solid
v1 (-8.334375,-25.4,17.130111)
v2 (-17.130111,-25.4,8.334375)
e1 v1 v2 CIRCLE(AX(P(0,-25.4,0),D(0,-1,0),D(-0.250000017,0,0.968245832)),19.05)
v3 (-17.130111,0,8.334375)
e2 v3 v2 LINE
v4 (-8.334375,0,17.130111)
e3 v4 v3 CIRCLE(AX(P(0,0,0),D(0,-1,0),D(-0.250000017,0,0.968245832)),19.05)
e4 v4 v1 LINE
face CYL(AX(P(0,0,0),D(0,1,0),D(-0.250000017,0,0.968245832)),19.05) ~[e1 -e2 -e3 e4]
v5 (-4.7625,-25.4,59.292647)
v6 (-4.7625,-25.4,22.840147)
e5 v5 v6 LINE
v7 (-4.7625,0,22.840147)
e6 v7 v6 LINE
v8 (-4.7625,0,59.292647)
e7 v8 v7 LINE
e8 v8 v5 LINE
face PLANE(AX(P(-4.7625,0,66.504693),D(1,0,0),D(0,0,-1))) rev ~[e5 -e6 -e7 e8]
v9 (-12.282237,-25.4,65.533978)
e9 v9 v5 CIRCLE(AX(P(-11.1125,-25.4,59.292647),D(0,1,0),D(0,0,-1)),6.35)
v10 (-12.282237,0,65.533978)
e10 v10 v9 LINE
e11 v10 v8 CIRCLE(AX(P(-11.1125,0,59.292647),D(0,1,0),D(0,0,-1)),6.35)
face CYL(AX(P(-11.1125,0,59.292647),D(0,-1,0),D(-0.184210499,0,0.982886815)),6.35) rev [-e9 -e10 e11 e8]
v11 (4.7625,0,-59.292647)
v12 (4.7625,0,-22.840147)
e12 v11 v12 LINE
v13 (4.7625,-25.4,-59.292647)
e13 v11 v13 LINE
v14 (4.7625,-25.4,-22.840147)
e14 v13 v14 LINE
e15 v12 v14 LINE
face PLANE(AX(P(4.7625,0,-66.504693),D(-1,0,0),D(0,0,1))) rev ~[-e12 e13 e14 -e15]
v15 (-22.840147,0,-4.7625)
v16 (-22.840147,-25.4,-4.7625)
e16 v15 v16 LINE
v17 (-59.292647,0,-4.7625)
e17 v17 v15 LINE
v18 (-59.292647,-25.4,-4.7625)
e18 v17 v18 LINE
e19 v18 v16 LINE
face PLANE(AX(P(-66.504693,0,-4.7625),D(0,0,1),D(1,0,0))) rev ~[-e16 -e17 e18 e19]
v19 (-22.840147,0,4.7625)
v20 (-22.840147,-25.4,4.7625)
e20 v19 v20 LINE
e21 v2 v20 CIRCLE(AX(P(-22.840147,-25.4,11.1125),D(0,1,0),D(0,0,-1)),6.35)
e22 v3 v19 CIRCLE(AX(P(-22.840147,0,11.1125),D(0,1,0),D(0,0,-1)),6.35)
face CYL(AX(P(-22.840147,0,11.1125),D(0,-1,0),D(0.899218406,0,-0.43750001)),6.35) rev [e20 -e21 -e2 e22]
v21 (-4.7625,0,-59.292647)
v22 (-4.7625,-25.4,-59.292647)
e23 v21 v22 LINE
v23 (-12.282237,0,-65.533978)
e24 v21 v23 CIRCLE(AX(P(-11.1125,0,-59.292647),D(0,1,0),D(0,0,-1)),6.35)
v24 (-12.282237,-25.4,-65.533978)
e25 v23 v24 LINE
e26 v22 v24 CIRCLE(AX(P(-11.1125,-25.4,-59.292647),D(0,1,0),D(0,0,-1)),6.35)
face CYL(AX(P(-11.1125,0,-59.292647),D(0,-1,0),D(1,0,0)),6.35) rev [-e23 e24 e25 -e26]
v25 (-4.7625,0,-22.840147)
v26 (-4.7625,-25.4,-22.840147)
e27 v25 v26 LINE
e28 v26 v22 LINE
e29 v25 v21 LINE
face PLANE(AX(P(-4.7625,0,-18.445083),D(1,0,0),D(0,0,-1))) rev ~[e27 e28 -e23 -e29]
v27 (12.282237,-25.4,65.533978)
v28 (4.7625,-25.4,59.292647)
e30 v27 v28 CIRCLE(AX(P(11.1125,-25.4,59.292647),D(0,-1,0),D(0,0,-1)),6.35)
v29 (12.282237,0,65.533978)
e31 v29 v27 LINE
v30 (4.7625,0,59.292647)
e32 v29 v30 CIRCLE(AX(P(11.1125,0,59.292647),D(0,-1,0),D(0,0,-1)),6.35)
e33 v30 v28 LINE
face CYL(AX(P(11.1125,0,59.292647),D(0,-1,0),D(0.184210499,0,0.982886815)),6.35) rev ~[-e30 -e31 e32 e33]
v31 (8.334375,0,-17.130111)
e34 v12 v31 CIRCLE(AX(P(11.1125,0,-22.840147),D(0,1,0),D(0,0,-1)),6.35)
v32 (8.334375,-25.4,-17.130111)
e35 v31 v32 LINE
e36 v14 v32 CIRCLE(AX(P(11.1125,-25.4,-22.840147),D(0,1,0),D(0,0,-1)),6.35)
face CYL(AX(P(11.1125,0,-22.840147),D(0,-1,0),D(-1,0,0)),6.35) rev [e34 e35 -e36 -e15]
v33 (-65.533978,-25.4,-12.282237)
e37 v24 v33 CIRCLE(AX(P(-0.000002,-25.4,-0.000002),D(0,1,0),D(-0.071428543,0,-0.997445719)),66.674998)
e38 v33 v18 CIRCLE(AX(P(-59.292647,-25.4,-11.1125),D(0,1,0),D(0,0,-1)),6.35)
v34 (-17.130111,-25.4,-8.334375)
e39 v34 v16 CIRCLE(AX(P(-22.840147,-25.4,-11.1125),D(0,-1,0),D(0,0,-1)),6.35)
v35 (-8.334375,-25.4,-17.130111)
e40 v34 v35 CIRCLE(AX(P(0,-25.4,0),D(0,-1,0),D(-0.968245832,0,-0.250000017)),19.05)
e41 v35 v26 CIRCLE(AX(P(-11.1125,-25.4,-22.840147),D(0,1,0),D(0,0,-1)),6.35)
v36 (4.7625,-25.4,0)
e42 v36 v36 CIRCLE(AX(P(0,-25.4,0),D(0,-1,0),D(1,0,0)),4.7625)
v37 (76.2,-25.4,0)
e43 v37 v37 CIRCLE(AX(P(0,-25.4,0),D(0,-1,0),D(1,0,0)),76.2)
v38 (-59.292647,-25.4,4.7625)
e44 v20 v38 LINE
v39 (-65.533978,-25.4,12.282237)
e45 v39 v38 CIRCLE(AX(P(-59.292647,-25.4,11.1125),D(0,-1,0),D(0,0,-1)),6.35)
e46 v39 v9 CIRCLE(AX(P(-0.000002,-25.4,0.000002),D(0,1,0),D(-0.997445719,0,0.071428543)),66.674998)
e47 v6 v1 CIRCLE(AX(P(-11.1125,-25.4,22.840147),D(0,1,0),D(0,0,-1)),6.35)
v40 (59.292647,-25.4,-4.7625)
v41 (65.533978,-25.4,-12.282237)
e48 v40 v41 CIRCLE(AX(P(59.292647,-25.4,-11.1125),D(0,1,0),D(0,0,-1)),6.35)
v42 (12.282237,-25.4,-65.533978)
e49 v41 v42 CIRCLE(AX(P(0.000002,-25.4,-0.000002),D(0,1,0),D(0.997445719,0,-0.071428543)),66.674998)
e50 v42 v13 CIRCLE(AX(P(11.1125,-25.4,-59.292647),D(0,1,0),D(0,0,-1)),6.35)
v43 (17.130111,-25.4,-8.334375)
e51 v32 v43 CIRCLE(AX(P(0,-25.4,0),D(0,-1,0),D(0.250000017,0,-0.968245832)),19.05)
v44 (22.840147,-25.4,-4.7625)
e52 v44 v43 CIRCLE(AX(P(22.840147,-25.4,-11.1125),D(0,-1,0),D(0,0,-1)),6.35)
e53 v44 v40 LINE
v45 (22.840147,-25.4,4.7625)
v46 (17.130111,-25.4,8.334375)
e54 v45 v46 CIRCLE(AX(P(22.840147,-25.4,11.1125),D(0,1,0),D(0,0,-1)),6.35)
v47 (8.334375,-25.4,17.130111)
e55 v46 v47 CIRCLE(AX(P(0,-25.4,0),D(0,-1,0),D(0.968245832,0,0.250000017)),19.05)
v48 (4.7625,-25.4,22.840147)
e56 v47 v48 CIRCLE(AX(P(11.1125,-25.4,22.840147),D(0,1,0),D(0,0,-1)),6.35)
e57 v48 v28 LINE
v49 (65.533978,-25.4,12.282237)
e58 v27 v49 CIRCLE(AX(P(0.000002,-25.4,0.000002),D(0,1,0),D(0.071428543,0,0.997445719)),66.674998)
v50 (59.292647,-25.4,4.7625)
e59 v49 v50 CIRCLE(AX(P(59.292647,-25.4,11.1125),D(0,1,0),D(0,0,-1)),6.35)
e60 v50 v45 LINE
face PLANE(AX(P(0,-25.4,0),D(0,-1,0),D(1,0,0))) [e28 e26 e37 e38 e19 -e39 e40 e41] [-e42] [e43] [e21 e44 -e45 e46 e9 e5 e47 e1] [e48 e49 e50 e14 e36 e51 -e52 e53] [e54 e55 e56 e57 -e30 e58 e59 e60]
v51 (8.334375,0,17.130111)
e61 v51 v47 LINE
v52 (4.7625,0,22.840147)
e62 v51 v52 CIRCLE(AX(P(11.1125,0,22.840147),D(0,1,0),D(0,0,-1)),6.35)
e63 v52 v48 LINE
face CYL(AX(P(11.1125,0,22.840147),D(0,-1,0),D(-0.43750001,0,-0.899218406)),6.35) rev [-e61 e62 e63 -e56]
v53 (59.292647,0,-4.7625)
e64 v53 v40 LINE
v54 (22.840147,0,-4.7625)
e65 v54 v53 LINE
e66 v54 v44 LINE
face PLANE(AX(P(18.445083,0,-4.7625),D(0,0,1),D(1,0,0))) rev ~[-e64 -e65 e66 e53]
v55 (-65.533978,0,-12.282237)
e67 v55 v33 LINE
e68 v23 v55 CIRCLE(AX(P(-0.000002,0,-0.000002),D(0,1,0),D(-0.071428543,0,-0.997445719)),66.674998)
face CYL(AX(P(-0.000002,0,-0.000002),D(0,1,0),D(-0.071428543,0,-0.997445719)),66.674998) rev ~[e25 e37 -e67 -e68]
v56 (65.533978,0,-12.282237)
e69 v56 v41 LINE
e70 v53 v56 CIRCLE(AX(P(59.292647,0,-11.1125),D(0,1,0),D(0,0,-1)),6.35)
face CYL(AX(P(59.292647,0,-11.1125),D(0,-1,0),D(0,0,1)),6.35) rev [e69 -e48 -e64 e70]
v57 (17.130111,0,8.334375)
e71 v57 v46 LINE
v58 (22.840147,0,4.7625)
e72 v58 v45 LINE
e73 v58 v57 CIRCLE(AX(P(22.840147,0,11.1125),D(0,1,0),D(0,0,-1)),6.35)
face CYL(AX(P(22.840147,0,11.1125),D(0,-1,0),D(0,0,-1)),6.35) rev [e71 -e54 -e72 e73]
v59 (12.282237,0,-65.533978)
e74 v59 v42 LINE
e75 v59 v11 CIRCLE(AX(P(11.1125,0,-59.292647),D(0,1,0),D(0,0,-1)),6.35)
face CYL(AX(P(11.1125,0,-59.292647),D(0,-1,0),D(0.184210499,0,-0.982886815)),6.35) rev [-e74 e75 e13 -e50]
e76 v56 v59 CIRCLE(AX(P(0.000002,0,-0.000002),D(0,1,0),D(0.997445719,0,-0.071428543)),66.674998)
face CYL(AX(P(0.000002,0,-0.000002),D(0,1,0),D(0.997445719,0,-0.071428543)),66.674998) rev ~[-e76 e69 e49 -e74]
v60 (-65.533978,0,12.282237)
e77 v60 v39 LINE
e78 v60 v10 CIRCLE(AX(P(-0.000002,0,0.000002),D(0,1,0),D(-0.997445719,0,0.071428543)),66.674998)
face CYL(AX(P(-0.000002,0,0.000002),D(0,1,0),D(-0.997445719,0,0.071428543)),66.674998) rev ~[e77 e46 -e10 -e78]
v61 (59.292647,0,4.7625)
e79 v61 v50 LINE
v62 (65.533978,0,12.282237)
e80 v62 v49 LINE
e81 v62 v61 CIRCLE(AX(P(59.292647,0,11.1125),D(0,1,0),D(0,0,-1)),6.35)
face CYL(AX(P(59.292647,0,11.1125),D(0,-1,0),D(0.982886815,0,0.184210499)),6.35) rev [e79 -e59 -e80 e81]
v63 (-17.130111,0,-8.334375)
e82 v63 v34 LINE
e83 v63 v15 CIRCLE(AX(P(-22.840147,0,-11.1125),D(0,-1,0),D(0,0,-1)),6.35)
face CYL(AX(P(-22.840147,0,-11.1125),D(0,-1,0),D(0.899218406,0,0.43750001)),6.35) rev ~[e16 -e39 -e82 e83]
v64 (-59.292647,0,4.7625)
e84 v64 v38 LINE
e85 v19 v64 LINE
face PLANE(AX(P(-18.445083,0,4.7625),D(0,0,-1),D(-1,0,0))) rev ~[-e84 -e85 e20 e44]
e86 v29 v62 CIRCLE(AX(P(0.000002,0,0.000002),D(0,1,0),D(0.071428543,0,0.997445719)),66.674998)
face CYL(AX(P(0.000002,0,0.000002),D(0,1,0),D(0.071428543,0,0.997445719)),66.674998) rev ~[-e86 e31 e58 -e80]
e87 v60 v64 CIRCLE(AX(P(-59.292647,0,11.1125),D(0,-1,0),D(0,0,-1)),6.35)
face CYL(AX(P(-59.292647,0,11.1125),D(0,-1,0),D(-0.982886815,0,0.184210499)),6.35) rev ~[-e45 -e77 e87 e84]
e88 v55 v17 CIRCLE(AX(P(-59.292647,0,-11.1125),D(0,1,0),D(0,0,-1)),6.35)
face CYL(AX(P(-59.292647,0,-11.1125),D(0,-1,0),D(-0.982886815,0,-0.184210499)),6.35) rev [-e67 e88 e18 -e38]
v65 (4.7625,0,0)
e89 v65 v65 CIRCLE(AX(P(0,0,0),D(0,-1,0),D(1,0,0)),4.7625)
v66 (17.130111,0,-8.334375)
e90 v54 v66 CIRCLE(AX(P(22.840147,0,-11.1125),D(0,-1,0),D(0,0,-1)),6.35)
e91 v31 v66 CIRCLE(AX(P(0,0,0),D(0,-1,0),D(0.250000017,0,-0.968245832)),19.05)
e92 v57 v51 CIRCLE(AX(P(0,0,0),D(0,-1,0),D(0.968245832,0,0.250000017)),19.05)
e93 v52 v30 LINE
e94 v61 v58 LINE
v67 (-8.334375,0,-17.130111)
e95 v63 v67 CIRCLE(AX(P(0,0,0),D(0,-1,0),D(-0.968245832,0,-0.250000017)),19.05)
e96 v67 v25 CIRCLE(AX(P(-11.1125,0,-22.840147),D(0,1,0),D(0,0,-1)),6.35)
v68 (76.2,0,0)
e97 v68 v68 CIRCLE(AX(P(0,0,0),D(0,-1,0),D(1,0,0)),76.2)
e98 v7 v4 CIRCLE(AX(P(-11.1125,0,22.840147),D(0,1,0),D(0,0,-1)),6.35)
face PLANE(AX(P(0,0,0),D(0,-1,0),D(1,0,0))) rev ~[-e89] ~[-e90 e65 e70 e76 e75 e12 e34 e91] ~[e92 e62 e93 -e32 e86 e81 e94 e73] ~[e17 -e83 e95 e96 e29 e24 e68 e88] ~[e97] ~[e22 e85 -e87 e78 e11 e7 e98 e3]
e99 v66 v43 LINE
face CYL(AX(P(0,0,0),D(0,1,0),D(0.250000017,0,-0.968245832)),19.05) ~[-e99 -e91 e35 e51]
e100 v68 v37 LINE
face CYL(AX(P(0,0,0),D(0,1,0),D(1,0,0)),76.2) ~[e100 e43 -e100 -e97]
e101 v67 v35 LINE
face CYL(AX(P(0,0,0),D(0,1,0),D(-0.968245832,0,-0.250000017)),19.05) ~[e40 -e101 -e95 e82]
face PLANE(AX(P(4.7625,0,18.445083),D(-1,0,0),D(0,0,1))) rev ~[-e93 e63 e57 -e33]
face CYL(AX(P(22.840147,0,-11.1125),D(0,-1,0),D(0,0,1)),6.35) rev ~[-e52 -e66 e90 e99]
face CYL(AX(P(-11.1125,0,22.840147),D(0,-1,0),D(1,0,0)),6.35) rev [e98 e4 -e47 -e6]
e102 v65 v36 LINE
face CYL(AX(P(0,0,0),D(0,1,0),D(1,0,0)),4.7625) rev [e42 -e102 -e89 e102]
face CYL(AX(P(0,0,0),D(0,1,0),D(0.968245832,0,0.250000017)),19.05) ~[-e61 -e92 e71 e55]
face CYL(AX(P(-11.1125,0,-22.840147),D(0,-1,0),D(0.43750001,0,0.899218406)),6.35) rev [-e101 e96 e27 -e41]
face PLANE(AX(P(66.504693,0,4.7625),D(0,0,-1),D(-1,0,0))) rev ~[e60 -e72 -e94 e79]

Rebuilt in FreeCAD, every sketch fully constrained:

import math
import FreeCAD as App
import Part
import Sketcher

V = App.Vector
Q = App.Units.Quantity


def edges_at(feature, points):
    """Names of the edges that pass closest to the given points."""
    edges = feature.Shape.Edges
    near = lambda p: min(range(len(edges)), key=lambda i: edges[i].distToShape(Part.Vertex(*p))[0])
    return sorted({f"Edge{near(p) + 1}" for p in points})

doc = App.newDocument("Part")
body = doc.addObject("PartDesign::Body", "Body")

# Sketch on XZ plane
sketch1 = body.newObject("Sketcher::SketchObject", "Sketch")
sketch1.AttachmentSupport = (doc.getObject("XZ_Plane"), [""])
sketch1.MapMode = "FlatFace"
sketch1.addGeometry(Part.Circle(V(0, 0, 0), V(0, 0, 1), 76.2), False)
sketch1.addGeometry(Part.LineSegment(V(18.4, -4.8, 0), V(66.5, -4.8, 0)), False)
sketch1.addGeometry(Part.ArcOfCircle(Part.Circle(V(0, 0, 0), V(0, 0, 1), 66.7), math.radians(-86), math.radians(-4)), False)
sketch1.addGeometry(Part.LineSegment(V(4.8, -66.5, 0), V(4.8, -18.4, 0)), False)
sketch1.addGeometry(Part.ArcOfCircle(Part.Circle(V(0, 0, 0), V(0, 0, 1), 19.1), math.radians(-76), math.radians(-14)), False)
sketch1.addGeometry(Part.ArcOfCircle(Part.Circle(V(0, 0, 0), V(0, 0, 1), 19.1), math.radians(-166), math.radians(-104)), False)
sketch1.addGeometry(Part.LineSegment(V(-4.8, -18.4, 0), V(-4.8, -66.5, 0)), False)
sketch1.addGeometry(Part.ArcOfCircle(Part.Circle(V(0, 0, 0), V(0, 0, 1), 66.7), math.radians(-176), math.radians(-94)), False)
sketch1.addGeometry(Part.LineSegment(V(-66.5, -4.8, 0), V(-18.4, -4.8, 0)), False)
sketch1.addGeometry(Part.ArcOfCircle(Part.Circle(V(0, 0, 0), V(0, 0, 1), 66.7), math.radians(94), math.radians(176)), False)
sketch1.addGeometry(Part.LineSegment(V(-4.8, 66.5, 0), V(-4.8, 18.4, 0)), False)
sketch1.addGeometry(Part.ArcOfCircle(Part.Circle(V(0, 0, 0), V(0, 0, 1), 19.1), math.radians(104), math.radians(166)), False)
sketch1.addGeometry(Part.LineSegment(V(-18.4, 4.8, 0), V(-66.5, 4.8, 0)), False)
sketch1.addGeometry(Part.Circle(V(0, 0, 0), V(0, 0, 1), 4.8), False)
sketch1.addGeometry(Part.ArcOfCircle(Part.Circle(V(0, 0, 0), V(0, 0, 1), 66.7), math.radians(4), math.radians(86)), False)
sketch1.addGeometry(Part.LineSegment(V(66.5, 4.8, 0), V(18.4, 4.8, 0)), False)
sketch1.addGeometry(Part.ArcOfCircle(Part.Circle(V(0, 0, 0), V(0, 0, 1), 19.1), math.radians(14), math.radians(76)), False)
sketch1.addGeometry(Part.LineSegment(V(4.8, 18.4, 0), V(4.8, 66.5, 0)), False)
sketch1.addConstraint(Sketcher.Constraint("Coincident", 1, 2, 2, 2))
sketch1.addConstraint(Sketcher.Constraint("Coincident", 2, 1, 3, 1))
sketch1.addConstraint(Sketcher.Constraint("Coincident", 3, 2, 4, 1))
sketch1.addConstraint(Sketcher.Constraint("Coincident", 4, 2, 1, 1))
sketch1.addConstraint(Sketcher.Constraint("Coincident", 5, 2, 6, 1))
sketch1.addConstraint(Sketcher.Constraint("Coincident", 6, 2, 7, 2))
sketch1.addConstraint(Sketcher.Constraint("Coincident", 7, 1, 8, 1))
sketch1.addConstraint(Sketcher.Constraint("Coincident", 8, 2, 5, 1))
sketch1.addConstraint(Sketcher.Constraint("Coincident", 9, 1, 10, 1))
sketch1.addConstraint(Sketcher.Constraint("Coincident", 10, 2, 11, 1))
sketch1.addConstraint(Sketcher.Constraint("Coincident", 11, 2, 12, 1))
sketch1.addConstraint(Sketcher.Constraint("Coincident", 12, 2, 9, 2))
sketch1.addConstraint(Sketcher.Constraint("Coincident", 14, 1, 15, 1))
sketch1.addConstraint(Sketcher.Constraint("Coincident", 15, 2, 16, 1))
sketch1.addConstraint(Sketcher.Constraint("Coincident", 16, 2, 17, 1))
sketch1.addConstraint(Sketcher.Constraint("Coincident", 17, 2, 14, 2))
sketch1.addConstraint(Sketcher.Constraint("Horizontal", 1))
sketch1.addConstraint(Sketcher.Constraint("Vertical", 3))
sketch1.addConstraint(Sketcher.Constraint("Vertical", 6))
sketch1.addConstraint(Sketcher.Constraint("Horizontal", 8))
sketch1.addConstraint(Sketcher.Constraint("Vertical", 10))
sketch1.addConstraint(Sketcher.Constraint("Horizontal", 12))
sketch1.addConstraint(Sketcher.Constraint("Horizontal", 15))
sketch1.addConstraint(Sketcher.Constraint("Vertical", 17))
sketch1.addConstraint(Sketcher.Constraint("Coincident", 0, 3, -1, 1))
sketch1.addConstraint(Sketcher.Constraint("Coincident", 2, 3, -1, 1))
sketch1.addConstraint(Sketcher.Constraint("Coincident", 4, 3, -1, 1))
sketch1.addConstraint(Sketcher.Constraint("Coincident", 5, 3, -1, 1))
sketch1.addConstraint(Sketcher.Constraint("Coincident", 7, 3, -1, 1))
sketch1.addConstraint(Sketcher.Constraint("Coincident", 9, 3, -1, 1))
sketch1.addConstraint(Sketcher.Constraint("Coincident", 11, 3, -1, 1))
sketch1.addConstraint(Sketcher.Constraint("Coincident", 13, 3, -1, 1))
sketch1.addConstraint(Sketcher.Constraint("Coincident", 14, 3, -1, 1))
sketch1.addConstraint(Sketcher.Constraint("Coincident", 16, 3, -1, 1))
sketch1.addConstraint(Sketcher.Constraint("Equal", 4, 5))
sketch1.addConstraint(Sketcher.Constraint("Equal", 2, 7))
sketch1.addConstraint(Sketcher.Constraint("Equal", 7, 9))
sketch1.addConstraint(Sketcher.Constraint("Equal", 5, 11))
sketch1.addConstraint(Sketcher.Constraint("Equal", 9, 14))
sketch1.addConstraint(Sketcher.Constraint("Equal", 11, 16))
sketch1.addConstraint(Sketcher.Constraint("Horizontal", 3, 2, 5, 2))
sketch1.addConstraint(Sketcher.Constraint("Horizontal", 4, 2, 7, 1))
sketch1.addConstraint(Sketcher.Constraint("Horizontal", 12, 2, 14, 1))
sketch1.addConstraint(Sketcher.Constraint("Horizontal", 10, 2, 16, 2))
sketch1.addConstraint(Sketcher.Constraint("Vertical", 6, 2, 9, 1))
sketch1.addConstraint(Sketcher.Constraint("Vertical", 8, 2, 11, 2))
sketch1.addConstraint(Sketcher.Constraint("Equal", 15, 3))
sketch1.addConstraint(Sketcher.Constraint("Diameter", 0, Q("6 in")))
sketch1.addConstraint(Sketcher.Constraint("Radius", 4, Q("0.75 in")))
sketch1.addConstraint(Sketcher.Constraint("Diameter", 13, Q("0.375 in")))
sketch1.addConstraint(Sketcher.Constraint("Radius", 2, Q("2.6249999 in")))
sketch1.addConstraint(Sketcher.Constraint("DistanceY", 1, 2, -1, 1, Q("0.1875 in")))
pad1 = body.newObject("PartDesign::Pad", "Pad")
pad1.Profile = sketch1
pad1.Length = Q("1 in")
doc.recompute()

fillet = body.newObject("PartDesign::Fillet", "Fillet")
fillet.Base = (pad1, edges_at(pad1, [
    (4.763, -12.7, 18.445),
    (18.445, -12.7, 4.763),
    (-66.505, -12.7, 4.763),
    (4.763, -12.7, -66.505),
    (-18.445, -12.7, 4.763),
    (-4.763, -12.7, 18.445),
    (-4.763, -12.7, -66.505),
    (66.505, -12.7, 4.763),
    (18.445, -12.7, -4.763),
    (4.763, -12.7, -18.445),
    (4.763, -12.7, 66.505),
    (-66.505, -12.7, -4.763),
    (-4.763, -12.7, -18.445),
    (-18.445, -12.7, -4.763),
    (-4.763, -12.7, 66.505),
    (66.505, -12.7, -4.763),
]))
fillet.Radius = Q("0.25 in")

doc.recompute()
